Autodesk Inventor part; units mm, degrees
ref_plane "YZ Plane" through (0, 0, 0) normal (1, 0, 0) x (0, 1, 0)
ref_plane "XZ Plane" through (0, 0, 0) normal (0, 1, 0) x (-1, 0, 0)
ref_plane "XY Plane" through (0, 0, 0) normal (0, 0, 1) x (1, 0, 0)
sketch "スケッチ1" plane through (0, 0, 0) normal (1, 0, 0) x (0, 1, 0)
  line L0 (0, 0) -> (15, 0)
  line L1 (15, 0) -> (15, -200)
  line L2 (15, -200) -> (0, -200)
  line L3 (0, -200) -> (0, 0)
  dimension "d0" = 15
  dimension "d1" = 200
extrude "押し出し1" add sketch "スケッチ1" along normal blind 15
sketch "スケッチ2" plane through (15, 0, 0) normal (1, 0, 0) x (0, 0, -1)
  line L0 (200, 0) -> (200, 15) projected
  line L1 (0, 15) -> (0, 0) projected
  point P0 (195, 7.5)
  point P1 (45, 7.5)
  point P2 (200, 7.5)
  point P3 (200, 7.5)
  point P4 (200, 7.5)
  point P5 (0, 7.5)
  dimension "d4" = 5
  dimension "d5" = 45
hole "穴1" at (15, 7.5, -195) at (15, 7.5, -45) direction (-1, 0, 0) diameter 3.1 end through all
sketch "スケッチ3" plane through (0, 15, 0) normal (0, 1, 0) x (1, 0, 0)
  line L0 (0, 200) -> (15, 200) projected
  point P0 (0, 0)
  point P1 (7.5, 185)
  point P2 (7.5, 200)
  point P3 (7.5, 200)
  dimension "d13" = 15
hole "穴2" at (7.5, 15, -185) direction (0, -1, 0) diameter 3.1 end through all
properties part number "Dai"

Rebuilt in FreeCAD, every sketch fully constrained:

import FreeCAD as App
import Part
import Sketcher
from FreeCAD import Vector

doc = App.newDocument("Part")
params = doc.addObject("Spreadsheet::Sheet", "Params")
for row, (alias, value) in enumerate([
    ("sketch1_width", "15 mm"),
    ("sketch1_height", "200 mm"),
    ("pad1_length", "15 mm"),
    ("sketch2_diameter", "3.1 mm"),
    ("hole_diameter", "3.1 mm"),
    ("sketch3_diameter", "3.1 mm"),
    ("hole2_diameter", "3.1 mm"),
], start=1):
    params.set(f"A{row}", alias)
    params.set(f"B{row}", "=" + value)
    params.setAlias(f"B{row}", alias)

body = doc.addObject("PartDesign::Body", "Body")

# Sketch on YZ plane
sketch1 = doc.addObject("Sketcher::SketchObject", "Sketch")
body.addObject(sketch1)
sketch1.AttachmentSupport = (doc.YZ_Plane, [""])
sketch1.MapMode = "FlatFace"
sketch1.addGeometry([
    Part.LineSegment(Vector(15, 0, 0), Vector(0, 0, 0)),
    Part.LineSegment(Vector(0, 0, 0), Vector(0, -200, 0)),
    Part.LineSegment(Vector(0, -200, 0), Vector(15, -200, 0)),
    Part.LineSegment(Vector(15, -200, 0), Vector(15, 0, 0)),
], False)
sketch1.addConstraint([
    Sketcher.Constraint("Coincident", 0, 2, 1, 1),
    Sketcher.Constraint("Coincident", 1, 2, 2, 1),
    Sketcher.Constraint("Coincident", 2, 2, 3, 1),
    Sketcher.Constraint("Coincident", 3, 2, 0, 1),
    Sketcher.Constraint("Horizontal", 0),
    Sketcher.Constraint("Vertical", 1),
    Sketcher.Constraint("Horizontal", 2),
    Sketcher.Constraint("Vertical", 3),
    Sketcher.Constraint("Coincident", 0, 2, -1, 1),
    Sketcher.Constraint("DistanceX", 0, 2, 0, 1, 15.0),
    Sketcher.Constraint("DistanceY", 1, 2, 1, 1, 200.0),
])
sketch1.setExpression("Constraints[9]", "Params.sketch1_width")
sketch1.setExpression("Constraints[10]", "Params.sketch1_height")
pad1 = doc.addObject("PartDesign::Pad", "Pad")
body.addObject(pad1)
pad1.Profile = sketch1
pad1.setExpression("Length", "Params.pad1_length")

# Sketch on YZ plane
sketch2 = doc.addObject("Sketcher::SketchObject", "Sketch001")
body.addObject(sketch2)
sketch2.AttachmentSupport = (doc.YZ_Plane, [""])
sketch2.MapMode = "FlatFace"
sketch2.AttachmentOffset = App.Placement(Vector(0, 0, 15), App.Rotation())
sketch2.addGeometry([
    Part.Circle(Vector(7.5, -195, 0), Vector(0, 0, 1), 1.55),
    Part.Circle(Vector(7.5, -45, 0), Vector(0, 0, 1), 1.55),
], False)
sketch2.addConstraint([
    Sketcher.Constraint("Equal", 0, 1),
    Sketcher.Constraint("Vertical", 0, 3, 1, 3),
    Sketcher.Constraint("Diameter", 0, 3.1),
    Sketcher.Constraint("DistanceY", 0, 3, -1, 1, 195.0),
    Sketcher.Constraint("DistanceY", 1, 3, -1, 1, 45.0),
    Sketcher.Constraint("DistanceX", -1, 1, 0, 3, 7.5),
])
sketch2.setExpression("Constraints[2]", "Params.sketch2_diameter")
doc.recompute()
hole = doc.addObject("PartDesign::Hole", "Hole")
body.addObject(hole)
hole.Profile = sketch2
hole.ThreadType = "None"
hole.setExpression("Diameter", "Params.hole_diameter")
hole.DepthType = "ThroughAll"

# Sketch on XZ plane
sketch3 = doc.addObject("Sketcher::SketchObject", "Sketch002")
body.addObject(sketch3)
sketch3.AttachmentSupport = (doc.XZ_Plane, [""])
sketch3.MapMode = "FlatFace"
sketch3.AttachmentOffset = App.Placement(Vector(0, 0, -15), App.Rotation())
sketch3.addGeometry(Part.Circle(Vector(7.5, -185, 0), Vector(0, 0, 1), 1.55), False)
sketch3.addConstraint([
    Sketcher.Constraint("Diameter", 0, 3.1),
    Sketcher.Constraint("DistanceY", 0, 3, -1, 1, 185.0),
    Sketcher.Constraint("DistanceX", -1, 1, 0, 3, 7.5),
])
sketch3.setExpression("Constraints[0]", "Params.sketch3_diameter")
doc.recompute()
hole2 = doc.addObject("PartDesign::Hole", "Hole001")
body.addObject(hole2)
hole2.Profile = sketch3
hole2.ThreadType = "None"
hole2.setExpression("Diameter", "Params.hole2_diameter")
hole2.DepthType = "ThroughAll"
hole2.Reversed = True

doc.recompute()
